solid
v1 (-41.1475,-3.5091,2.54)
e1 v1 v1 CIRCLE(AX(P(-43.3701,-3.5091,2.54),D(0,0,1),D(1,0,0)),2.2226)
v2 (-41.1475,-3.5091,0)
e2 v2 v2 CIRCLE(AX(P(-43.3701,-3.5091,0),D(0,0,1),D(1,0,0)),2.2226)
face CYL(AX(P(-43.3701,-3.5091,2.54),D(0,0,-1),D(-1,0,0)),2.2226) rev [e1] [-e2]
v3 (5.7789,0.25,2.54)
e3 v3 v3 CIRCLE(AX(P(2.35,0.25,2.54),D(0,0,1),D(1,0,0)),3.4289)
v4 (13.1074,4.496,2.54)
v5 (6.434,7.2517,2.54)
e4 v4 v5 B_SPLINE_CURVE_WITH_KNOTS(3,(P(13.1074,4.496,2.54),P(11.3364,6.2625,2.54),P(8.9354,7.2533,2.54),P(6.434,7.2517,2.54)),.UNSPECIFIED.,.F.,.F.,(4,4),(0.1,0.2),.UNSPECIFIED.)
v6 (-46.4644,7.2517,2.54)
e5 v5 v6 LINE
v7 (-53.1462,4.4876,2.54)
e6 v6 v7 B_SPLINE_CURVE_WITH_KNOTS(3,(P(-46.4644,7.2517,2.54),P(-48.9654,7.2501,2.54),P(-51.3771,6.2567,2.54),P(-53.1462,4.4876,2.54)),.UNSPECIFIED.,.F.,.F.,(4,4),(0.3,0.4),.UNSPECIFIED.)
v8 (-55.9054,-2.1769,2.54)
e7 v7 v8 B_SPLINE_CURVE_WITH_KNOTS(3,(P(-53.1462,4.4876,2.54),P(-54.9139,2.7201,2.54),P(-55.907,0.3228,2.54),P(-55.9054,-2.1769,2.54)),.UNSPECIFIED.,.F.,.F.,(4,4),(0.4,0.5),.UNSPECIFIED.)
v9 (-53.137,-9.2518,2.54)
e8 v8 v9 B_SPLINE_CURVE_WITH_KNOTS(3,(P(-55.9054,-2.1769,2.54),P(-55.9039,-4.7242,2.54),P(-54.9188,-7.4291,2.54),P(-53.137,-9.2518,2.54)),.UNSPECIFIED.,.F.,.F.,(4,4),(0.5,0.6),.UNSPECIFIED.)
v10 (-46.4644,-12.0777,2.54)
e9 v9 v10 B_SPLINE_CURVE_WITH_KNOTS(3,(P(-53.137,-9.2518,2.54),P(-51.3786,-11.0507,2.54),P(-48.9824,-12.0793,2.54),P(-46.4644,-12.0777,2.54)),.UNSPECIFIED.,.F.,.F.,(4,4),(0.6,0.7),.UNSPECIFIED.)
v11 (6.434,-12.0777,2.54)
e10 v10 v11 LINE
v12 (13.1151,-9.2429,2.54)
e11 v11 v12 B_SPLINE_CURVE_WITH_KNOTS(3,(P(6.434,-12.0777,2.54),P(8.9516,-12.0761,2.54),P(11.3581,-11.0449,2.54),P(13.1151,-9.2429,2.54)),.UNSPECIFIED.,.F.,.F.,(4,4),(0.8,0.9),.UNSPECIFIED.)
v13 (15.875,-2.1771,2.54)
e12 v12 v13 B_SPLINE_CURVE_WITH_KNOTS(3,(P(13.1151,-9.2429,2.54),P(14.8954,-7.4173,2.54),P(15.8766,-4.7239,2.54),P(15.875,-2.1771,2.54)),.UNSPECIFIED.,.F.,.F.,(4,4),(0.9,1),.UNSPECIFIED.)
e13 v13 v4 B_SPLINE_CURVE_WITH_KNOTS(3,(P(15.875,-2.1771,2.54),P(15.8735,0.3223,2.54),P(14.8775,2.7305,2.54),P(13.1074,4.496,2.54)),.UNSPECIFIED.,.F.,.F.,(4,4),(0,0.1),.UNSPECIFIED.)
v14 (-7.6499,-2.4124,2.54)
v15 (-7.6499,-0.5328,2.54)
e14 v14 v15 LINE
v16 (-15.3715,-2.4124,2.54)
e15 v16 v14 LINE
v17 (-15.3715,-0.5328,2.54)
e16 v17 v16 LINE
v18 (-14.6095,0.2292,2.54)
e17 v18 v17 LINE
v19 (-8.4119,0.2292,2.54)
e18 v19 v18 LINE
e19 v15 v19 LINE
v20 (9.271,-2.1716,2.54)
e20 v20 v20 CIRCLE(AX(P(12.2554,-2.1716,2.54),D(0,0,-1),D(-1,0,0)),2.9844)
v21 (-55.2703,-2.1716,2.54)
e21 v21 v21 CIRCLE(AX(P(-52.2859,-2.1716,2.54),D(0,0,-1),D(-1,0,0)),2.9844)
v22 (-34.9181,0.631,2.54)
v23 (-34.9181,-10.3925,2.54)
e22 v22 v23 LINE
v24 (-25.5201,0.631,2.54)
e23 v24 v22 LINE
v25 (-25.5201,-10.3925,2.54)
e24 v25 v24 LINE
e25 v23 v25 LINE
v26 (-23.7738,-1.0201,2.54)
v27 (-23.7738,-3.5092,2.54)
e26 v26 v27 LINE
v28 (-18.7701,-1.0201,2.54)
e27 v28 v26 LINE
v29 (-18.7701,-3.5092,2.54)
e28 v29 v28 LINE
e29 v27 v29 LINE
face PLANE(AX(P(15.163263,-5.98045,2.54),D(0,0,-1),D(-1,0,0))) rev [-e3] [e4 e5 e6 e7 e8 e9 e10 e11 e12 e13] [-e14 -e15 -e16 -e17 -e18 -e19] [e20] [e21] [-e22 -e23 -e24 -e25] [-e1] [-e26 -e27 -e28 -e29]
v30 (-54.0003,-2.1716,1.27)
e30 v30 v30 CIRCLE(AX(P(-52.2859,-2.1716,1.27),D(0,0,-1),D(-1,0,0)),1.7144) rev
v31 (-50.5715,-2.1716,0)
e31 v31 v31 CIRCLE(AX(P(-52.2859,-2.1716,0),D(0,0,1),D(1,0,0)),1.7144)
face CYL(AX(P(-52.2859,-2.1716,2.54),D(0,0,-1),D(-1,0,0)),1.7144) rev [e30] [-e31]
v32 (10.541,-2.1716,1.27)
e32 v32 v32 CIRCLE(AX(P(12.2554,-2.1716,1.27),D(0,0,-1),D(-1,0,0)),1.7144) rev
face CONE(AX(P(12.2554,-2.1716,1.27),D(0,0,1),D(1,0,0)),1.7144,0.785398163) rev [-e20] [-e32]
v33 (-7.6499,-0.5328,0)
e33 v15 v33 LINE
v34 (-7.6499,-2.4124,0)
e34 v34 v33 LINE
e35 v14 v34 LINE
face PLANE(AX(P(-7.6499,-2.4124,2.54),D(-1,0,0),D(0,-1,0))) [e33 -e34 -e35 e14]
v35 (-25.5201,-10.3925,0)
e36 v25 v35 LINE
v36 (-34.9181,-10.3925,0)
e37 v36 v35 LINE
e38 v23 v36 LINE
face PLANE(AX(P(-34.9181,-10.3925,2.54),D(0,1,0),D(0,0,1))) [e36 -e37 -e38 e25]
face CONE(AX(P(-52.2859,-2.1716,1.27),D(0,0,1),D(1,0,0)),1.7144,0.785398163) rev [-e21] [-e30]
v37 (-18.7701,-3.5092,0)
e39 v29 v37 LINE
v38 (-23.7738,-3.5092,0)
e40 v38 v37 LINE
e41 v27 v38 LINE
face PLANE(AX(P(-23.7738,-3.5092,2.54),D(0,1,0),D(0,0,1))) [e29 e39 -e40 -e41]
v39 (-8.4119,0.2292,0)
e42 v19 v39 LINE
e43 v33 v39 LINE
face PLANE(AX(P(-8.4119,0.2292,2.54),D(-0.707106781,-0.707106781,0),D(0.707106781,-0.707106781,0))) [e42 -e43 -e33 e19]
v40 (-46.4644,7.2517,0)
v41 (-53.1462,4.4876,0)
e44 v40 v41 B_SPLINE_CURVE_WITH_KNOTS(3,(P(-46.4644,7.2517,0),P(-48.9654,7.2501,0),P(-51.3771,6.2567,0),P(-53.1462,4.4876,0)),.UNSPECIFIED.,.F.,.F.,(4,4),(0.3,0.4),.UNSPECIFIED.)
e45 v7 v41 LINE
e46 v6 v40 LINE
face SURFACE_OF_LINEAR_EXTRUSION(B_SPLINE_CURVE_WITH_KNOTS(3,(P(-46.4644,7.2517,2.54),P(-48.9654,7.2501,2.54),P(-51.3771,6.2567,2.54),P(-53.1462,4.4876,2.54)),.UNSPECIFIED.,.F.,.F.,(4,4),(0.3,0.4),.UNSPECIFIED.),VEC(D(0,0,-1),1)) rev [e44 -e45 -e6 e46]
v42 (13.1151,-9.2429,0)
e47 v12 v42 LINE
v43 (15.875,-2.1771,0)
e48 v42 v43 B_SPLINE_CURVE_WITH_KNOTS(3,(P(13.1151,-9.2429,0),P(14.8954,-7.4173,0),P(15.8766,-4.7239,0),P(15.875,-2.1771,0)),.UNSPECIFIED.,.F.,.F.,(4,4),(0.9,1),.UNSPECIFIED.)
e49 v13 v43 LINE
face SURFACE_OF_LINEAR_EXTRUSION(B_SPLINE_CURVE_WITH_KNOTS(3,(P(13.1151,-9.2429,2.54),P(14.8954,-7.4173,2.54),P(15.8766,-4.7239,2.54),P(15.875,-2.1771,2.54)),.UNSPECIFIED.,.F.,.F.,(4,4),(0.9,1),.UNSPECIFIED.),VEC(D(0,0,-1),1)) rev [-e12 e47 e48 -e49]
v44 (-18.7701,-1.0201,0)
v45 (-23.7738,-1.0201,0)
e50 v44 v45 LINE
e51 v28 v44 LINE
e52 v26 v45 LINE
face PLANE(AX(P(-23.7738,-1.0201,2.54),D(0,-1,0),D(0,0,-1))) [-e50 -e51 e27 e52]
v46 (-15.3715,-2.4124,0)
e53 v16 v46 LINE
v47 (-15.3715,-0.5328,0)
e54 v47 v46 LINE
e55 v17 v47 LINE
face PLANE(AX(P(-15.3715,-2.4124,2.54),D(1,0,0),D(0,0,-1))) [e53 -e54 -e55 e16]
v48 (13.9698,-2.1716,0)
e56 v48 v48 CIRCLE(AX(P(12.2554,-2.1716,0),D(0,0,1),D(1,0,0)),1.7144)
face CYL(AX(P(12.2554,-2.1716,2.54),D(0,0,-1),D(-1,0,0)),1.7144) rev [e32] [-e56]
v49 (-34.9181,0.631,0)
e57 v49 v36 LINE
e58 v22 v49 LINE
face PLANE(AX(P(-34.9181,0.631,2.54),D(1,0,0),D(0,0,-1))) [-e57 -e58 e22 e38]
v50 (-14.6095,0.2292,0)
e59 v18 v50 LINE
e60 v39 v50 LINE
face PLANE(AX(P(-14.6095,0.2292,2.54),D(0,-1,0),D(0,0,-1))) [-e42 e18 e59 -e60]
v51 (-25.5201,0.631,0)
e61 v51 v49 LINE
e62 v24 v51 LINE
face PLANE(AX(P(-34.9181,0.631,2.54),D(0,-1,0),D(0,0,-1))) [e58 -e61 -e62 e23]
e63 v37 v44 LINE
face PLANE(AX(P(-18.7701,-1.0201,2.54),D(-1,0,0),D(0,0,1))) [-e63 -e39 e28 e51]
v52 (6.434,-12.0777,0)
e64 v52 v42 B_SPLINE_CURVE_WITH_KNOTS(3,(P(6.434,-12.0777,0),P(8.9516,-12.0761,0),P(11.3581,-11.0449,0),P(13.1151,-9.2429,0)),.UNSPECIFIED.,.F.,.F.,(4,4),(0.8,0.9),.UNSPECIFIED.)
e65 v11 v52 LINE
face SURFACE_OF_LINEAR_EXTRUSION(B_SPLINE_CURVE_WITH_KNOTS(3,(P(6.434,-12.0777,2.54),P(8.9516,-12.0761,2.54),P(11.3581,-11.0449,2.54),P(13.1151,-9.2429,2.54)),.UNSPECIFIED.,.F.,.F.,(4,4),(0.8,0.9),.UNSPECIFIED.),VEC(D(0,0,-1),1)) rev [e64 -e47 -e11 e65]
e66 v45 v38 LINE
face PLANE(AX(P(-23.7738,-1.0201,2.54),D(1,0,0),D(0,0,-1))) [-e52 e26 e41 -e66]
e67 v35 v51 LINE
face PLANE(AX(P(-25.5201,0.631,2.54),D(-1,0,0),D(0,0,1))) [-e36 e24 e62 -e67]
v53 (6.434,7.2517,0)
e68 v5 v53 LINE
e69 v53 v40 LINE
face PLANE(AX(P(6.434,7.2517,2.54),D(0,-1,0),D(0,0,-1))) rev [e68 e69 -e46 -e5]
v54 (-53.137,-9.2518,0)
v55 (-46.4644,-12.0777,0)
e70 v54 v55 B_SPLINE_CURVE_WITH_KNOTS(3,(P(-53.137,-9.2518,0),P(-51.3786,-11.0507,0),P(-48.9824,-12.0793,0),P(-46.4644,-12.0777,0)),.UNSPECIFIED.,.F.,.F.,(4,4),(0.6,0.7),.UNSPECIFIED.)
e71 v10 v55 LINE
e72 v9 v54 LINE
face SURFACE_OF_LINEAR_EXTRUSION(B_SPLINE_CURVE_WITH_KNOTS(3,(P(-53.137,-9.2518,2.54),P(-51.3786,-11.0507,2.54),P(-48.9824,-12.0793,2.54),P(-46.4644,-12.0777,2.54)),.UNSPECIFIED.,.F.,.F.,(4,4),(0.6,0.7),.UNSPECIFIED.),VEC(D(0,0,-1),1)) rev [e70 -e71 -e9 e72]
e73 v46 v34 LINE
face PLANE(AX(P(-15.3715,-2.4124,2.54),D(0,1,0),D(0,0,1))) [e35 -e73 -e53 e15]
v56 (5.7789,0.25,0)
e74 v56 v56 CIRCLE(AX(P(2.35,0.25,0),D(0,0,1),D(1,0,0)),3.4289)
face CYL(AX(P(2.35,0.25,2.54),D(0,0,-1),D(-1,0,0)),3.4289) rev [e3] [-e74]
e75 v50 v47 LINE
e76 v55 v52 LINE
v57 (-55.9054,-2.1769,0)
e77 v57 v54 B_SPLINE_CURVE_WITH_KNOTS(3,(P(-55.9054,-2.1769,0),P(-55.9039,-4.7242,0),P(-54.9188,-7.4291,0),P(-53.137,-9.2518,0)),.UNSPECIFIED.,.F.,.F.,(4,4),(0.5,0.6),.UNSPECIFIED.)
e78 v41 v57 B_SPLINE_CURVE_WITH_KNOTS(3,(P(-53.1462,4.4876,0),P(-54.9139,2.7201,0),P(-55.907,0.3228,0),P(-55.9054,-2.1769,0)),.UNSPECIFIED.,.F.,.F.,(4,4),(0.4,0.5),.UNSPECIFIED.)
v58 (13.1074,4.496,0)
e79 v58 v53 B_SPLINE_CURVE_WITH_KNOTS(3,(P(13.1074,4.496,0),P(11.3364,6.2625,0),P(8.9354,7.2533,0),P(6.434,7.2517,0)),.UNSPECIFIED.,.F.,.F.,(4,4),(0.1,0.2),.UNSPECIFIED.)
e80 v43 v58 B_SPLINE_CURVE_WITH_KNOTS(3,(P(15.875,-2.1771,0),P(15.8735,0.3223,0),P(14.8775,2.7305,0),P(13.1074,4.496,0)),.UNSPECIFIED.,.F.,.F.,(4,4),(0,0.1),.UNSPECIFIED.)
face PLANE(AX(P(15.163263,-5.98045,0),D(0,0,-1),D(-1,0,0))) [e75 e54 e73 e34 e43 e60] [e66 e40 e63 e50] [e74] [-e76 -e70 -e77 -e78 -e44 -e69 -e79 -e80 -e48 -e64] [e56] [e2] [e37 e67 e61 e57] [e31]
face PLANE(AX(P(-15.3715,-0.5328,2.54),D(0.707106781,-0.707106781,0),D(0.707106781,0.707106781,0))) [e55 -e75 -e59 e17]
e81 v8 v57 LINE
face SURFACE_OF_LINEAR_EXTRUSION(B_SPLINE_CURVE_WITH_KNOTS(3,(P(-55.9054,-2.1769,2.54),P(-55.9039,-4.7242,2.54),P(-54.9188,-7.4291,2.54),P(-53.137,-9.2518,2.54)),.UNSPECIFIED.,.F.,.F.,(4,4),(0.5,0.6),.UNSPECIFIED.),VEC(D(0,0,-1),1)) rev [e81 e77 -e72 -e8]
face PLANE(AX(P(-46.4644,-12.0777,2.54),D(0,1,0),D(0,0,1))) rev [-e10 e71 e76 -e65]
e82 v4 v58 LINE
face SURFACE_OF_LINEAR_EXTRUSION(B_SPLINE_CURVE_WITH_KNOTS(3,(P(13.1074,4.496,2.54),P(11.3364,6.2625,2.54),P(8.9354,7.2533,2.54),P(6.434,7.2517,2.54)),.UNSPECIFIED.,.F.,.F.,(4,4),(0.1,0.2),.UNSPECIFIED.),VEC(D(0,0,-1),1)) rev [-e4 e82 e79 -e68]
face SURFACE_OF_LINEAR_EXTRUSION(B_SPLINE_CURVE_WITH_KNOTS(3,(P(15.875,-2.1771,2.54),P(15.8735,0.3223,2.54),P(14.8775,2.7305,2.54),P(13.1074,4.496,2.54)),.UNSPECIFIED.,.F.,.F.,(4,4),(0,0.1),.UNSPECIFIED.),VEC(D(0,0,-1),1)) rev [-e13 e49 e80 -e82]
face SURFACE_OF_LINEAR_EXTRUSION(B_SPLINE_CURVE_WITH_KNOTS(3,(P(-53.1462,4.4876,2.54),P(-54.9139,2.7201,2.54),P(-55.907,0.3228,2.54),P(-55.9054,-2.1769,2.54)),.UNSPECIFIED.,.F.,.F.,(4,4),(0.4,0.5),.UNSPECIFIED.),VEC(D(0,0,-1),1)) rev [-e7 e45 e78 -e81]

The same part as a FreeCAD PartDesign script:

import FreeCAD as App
import Part
import Sketcher
Q = App.Units.Quantity


def edges_at(feature, points):
    """Names of the edges that pass closest to the given points."""
    edges = feature.Shape.Edges
    near = lambda p: min(range(len(edges)), key=lambda i: edges[i].distToShape(Part.Vertex(*p))[0])
    return sorted({f"Edge{near(p) + 1}" for p in points})

doc = App.newDocument("Part")
body = doc.addObject("PartDesign::Body", "Body")

sketch1 = body.newObject("Sketcher::SketchObject", "Sketch")
sketch1.AttachmentSupport = (doc.getObject("XY_Plane"), [""])
sketch1.MapMode = "FlatFace"
sketch1.addGeometry([
    Part.LineSegment(App.Vector(6.434, 7.2517, 0), App.Vector(-46.4644, 7.2517, 0)),
    Part.BSplineCurve([App.Vector(-46.4644, 7.2517, 0), App.Vector(-48.9654, 7.2501, 0), App.Vector(-51.3771, 6.2567, 0), App.Vector(-53.1462, 4.4876, 0)], [4, 4], [0.3, 0.4], False, 3, [1, 1, 1, 1], False),
    Part.BSplineCurve([App.Vector(-53.1462, 4.4876, 0), App.Vector(-54.9139, 2.7201, 0), App.Vector(-55.907, 0.3228, 0), App.Vector(-55.9054, -2.1769, 0)], [4, 4], [0.4, 0.5], False, 3, [1, 1, 1, 1], False),
    Part.BSplineCurve([App.Vector(-55.9054, -2.1769, 0), App.Vector(-55.9039, -4.7242, 0), App.Vector(-54.9188, -7.4291, 0), App.Vector(-53.137, -9.2518, 0)], [4, 4], [0.5, 0.6], False, 3, [1, 1, 1, 1], False),
    Part.BSplineCurve([App.Vector(-53.137, -9.2518, 0), App.Vector(-51.3786, -11.0507, 0), App.Vector(-48.9824, -12.0793, 0), App.Vector(-46.4644, -12.0777, 0)], [4, 4], [0.6, 0.7], False, 3, [1, 1, 1, 1], False),
    Part.LineSegment(App.Vector(-46.4644, -12.0777, 0), App.Vector(6.434, -12.0777, 0)),
    Part.BSplineCurve([App.Vector(6.434, -12.0777, 0), App.Vector(8.9516, -12.0761, 0), App.Vector(11.3581, -11.0449, 0), App.Vector(13.1151, -9.2429, 0)], [4, 4], [0.8, 0.9], False, 3, [1, 1, 1, 1], False),
    Part.BSplineCurve([App.Vector(13.1151, -9.2429, 0), App.Vector(14.8954, -7.4173, 0), App.Vector(15.8766, -4.7239, 0), App.Vector(15.875, -2.1771, 0)], [4, 4], [0.9, 1], False, 3, [1, 1, 1, 1], False),
    Part.BSplineCurve([App.Vector(15.875, -2.1771, 0), App.Vector(15.8735, 0.3223, 0), App.Vector(14.8775, 2.7305, 0), App.Vector(13.1074, 4.496, 0)], [4, 4], [0, 0.1], False, 3, [1, 1, 1, 1], False),
    Part.BSplineCurve([App.Vector(13.1074, 4.496, 0), App.Vector(11.3364, 6.2625, 0), App.Vector(8.9354, 7.2533, 0), App.Vector(6.434, 7.2517, 0)], [4, 4], [0.1, 0.2], False, 3, [1, 1, 1, 1], False),
    Part.Circle(App.Vector(-43.3701, -3.5091, 0), App.Vector(0, 0, 1), 2.2226),
    Part.LineSegment(App.Vector(-25.5201, -10.3925, 0), App.Vector(-34.9181, -10.3925, 0)),
    Part.LineSegment(App.Vector(-34.9181, -10.3925, 0), App.Vector(-34.9181, 0.631, 0)),
    Part.LineSegment(App.Vector(-34.9181, 0.631, 0), App.Vector(-25.5201, 0.631, 0)),
    Part.LineSegment(App.Vector(-25.5201, 0.631, 0), App.Vector(-25.5201, -10.3925, 0)),
    Part.Circle(App.Vector(-52.2859, -2.1716, 0), App.Vector(0, 0, 1), 1.7144),
    Part.LineSegment(App.Vector(-18.7701, -3.5092, 0), App.Vector(-23.7738, -3.5092, 0)),
    Part.LineSegment(App.Vector(-23.7738, -3.5092, 0), App.Vector(-23.7738, -1.0201, 0)),
    Part.LineSegment(App.Vector(-23.7738, -1.0201, 0), App.Vector(-18.7701, -1.0201, 0)),
    Part.LineSegment(App.Vector(-18.7701, -1.0201, 0), App.Vector(-18.7701, -3.5092, 0)),
    Part.LineSegment(App.Vector(-15.3715, -2.4124, 0), App.Vector(-15.3715, -0.5328, 0)),
    Part.LineSegment(App.Vector(-15.3715, -0.5328, 0), App.Vector(-14.6095, 0.2292, 0)),
    Part.LineSegment(App.Vector(-14.6095, 0.2292, 0), App.Vector(-8.4119, 0.2292, 0)),
    Part.LineSegment(App.Vector(-8.4119, 0.2292, 0), App.Vector(-7.6499, -0.5328, 0)),
    Part.LineSegment(App.Vector(-7.6499, -0.5328, 0), App.Vector(-7.6499, -2.4124, 0)),
    Part.LineSegment(App.Vector(-7.6499, -2.4124, 0), App.Vector(-15.3715, -2.4124, 0)),
    Part.Circle(App.Vector(12.2554, -2.1716, 0), App.Vector(0, 0, 1), 1.7144),
    Part.Circle(App.Vector(2.35, 0.25, 0), App.Vector(0, 0, 1), 3.4289),
], False)
sketch1.addConstraint([
    Sketcher.Constraint("Block", 1),
    Sketcher.Constraint("Block", 2),
    Sketcher.Constraint("Block", 3),
    Sketcher.Constraint("Block", 4),
    Sketcher.Constraint("Block", 6),
    Sketcher.Constraint("Block", 7),
    Sketcher.Constraint("Block", 8),
    Sketcher.Constraint("Block", 9),
    Sketcher.Constraint("Coincident", 0, 2, 1, 1),
    Sketcher.Constraint("Coincident", 4, 2, 5, 1),
    Sketcher.Constraint("Coincident", 5, 2, 6, 1),
    Sketcher.Constraint("Coincident", 9, 2, 0, 1),
    Sketcher.Constraint("Coincident", 11, 2, 12, 1),
    Sketcher.Constraint("Coincident", 12, 2, 13, 1),
    Sketcher.Constraint("Coincident", 13, 2, 14, 1),
    Sketcher.Constraint("Coincident", 14, 2, 11, 1),
    Sketcher.Constraint("Coincident", 16, 2, 17, 1),
    Sketcher.Constraint("Coincident", 17, 2, 18, 1),
    Sketcher.Constraint("Coincident", 18, 2, 19, 1),
    Sketcher.Constraint("Coincident", 19, 2, 16, 1),
    Sketcher.Constraint("Coincident", 20, 2, 21, 1),
    Sketcher.Constraint("Coincident", 21, 2, 22, 1),
    Sketcher.Constraint("Coincident", 22, 2, 23, 1),
    Sketcher.Constraint("Coincident", 23, 2, 24, 1),
    Sketcher.Constraint("Coincident", 24, 2, 25, 1),
    Sketcher.Constraint("Coincident", 25, 2, 20, 1),
    Sketcher.Constraint("Horizontal", 11),
    Sketcher.Constraint("Vertical", 12),
    Sketcher.Constraint("Horizontal", 13),
    Sketcher.Constraint("Vertical", 14),
    Sketcher.Constraint("Horizontal", 16),
    Sketcher.Constraint("Vertical", 17),
    Sketcher.Constraint("Horizontal", 18),
    Sketcher.Constraint("Vertical", 19),
    Sketcher.Constraint("Vertical", 20),
    Sketcher.Constraint("Horizontal", 22),
    Sketcher.Constraint("Vertical", 24),
    Sketcher.Constraint("Horizontal", 25),
    Sketcher.Constraint("Equal", 15, 26),
    Sketcher.Constraint("Perpendicular", 21, 23),
    Sketcher.Constraint("Horizontal", 15, 3, 26, 3),
    Sketcher.Constraint("Horizontal", 20, 2, 23, 2),
    Sketcher.Constraint("Equal", 21, 23),
    Sketcher.Constraint("DistanceX", 11, 2, 11, 1, Q("0.37 in")),
    Sketcher.Constraint("Diameter", 10, Q("4.4452 mm")),
    Sketcher.Constraint("Diameter", 15, Q("3.4288 mm")),
    Sketcher.Constraint("Diameter", 27, Q("6.8578 mm")),
    Sketcher.Constraint("DistanceX", 22, 1, 22, 2, Q("0.244 in")),
    Sketcher.Constraint("DistanceX", 25, 2, 25, 1, Q("0.304 in")),
    Sketcher.Constraint("DistanceY", 20, 1, 20, 2, Q("0.074 in")),
    Sketcher.Constraint("DistanceY", 11, 2, 10, 3, Q("0.271 in")),
    Sketcher.Constraint("DistanceY", 27, 3, 12, 2, Q("0.015 in")),
    Sketcher.Constraint("DistanceY", 16, 2, 13, 2, Q("0.163 in")),
    Sketcher.Constraint("DistanceX", 16, 2, 16, 1, Q("5.0037 mm")),
    Sketcher.Constraint("DistanceY", 12, 1, 12, 2, Q("11.0235 mm")),
    Sketcher.Constraint("DistanceY", 17, 1, 17, 2, Q("2.4891 mm")),
    Sketcher.Constraint("DistanceX", 15, 3, -1, 1, Q("2.0585 in")),
    Sketcher.Constraint("DistanceX", 10, 3, -1, 1, Q("43.3701 mm")),
    Sketcher.Constraint("DistanceY", 10, 3, -1, 1, Q("3.5091 mm")),
    Sketcher.Constraint("DistanceY", 15, 3, -1, 1, Q("2.1716 mm")),
    Sketcher.Constraint("DistanceX", -1, 1, 26, 3, Q("12.2554 mm")),
    Sketcher.Constraint("DistanceX", -1, 1, 27, 3, Q("2.35 mm")),
    Sketcher.Constraint("DistanceX", 11, 2, -1, 1, Q("34.9181 mm")),
    Sketcher.Constraint("DistanceX", 16, 2, -1, 1, Q("23.7738 mm")),
    Sketcher.Constraint("DistanceX", 20, 2, -1, 1, Q("15.3715 mm")),
    Sketcher.Constraint("DistanceY", 20, 2, -1, 1, Q("0.5328 mm")),
])
pad1 = body.newObject("PartDesign::Pad", "Pad")
pad1.Profile = sketch1
pad1.Length = Q("0.1 in")
doc.recompute()

chamfer = body.newObject("PartDesign::Chamfer", "Chamfer")
chamfer.Base = (pad1, edges_at(pad1, [(10.541, -2.172, 2.54), (-54, -2.172, 2.54)]))
chamfer.Size = Q("0.05 in")

doc.recompute()
